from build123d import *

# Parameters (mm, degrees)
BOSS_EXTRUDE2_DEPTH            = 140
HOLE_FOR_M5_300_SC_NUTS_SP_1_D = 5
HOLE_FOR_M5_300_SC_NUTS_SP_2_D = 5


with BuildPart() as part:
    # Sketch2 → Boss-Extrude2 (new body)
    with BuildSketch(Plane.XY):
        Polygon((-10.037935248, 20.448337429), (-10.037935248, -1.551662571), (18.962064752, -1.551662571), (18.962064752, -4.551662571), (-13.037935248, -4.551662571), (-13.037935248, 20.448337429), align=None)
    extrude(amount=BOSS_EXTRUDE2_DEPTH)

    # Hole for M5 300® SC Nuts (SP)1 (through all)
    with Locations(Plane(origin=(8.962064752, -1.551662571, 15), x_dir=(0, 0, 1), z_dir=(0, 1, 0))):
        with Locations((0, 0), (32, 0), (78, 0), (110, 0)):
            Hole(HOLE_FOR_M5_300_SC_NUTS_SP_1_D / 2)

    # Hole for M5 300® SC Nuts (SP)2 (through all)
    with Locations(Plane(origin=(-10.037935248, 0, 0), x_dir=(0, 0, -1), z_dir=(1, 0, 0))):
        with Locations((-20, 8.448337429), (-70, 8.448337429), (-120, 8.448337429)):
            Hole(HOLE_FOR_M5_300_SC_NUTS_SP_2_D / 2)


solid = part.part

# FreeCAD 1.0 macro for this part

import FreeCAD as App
import Part
import Sketcher
from FreeCAD import Vector

doc = App.newDocument("Part")
body = doc.addObject("PartDesign::Body", "Body")

# Sketch on XY plane
sketch1 = doc.addObject("Sketcher::SketchObject", "Sketch")
body.addObject(sketch1)
sketch1.AttachmentSupport = (doc.XY_Plane, [""])
sketch1.MapMode = "FlatFace"
sketch1.addGeometry([
    Part.LineSegment(Vector(-10, -1.6, 0), Vector(-10, 20.4, 0)),  # 0
    Part.LineSegment(Vector(-10, 20.4, 0), Vector(-13, 20.4, 0)),  # 1
    Part.LineSegment(Vector(-13, 20.4, 0), Vector(-13, -4.6, 0)),  # 2
    Part.LineSegment(Vector(-13, -4.6, 0), Vector(19, -4.6, 0)),  # 3
    Part.LineSegment(Vector(19, -4.6, 0), Vector(19, -1.6, 0)),  # 4
    Part.LineSegment(Vector(19, -1.6, 0), Vector(-10, -1.6, 0)),  # 5
], False)
sketch1.addConstraint([
    Sketcher.Constraint("Coincident", 0, 2, 1, 1),
    Sketcher.Constraint("Coincident", 1, 2, 2, 1),
    Sketcher.Constraint("Coincident", 2, 2, 3, 1),
    Sketcher.Constraint("Coincident", 3, 2, 4, 1),
    Sketcher.Constraint("Coincident", 4, 2, 5, 1),
    Sketcher.Constraint("Coincident", 5, 2, 0, 1),
    Sketcher.Constraint("Vertical", 0),
    Sketcher.Constraint("Horizontal", 1),
    Sketcher.Constraint("Vertical", 2),
    Sketcher.Constraint("Horizontal", 3),
    Sketcher.Constraint("Vertical", 4),
    Sketcher.Constraint("Horizontal", 5),
    Sketcher.Constraint("Equal", 1, 4),
    Sketcher.Constraint("DistanceX", 1, 2, 1, 1, 3.0),
    Sketcher.Constraint("DistanceX", 3, 1, 3, 2, 32.0),
    Sketcher.Constraint("DistanceY", 0, 1, 0, 2, 22.0),
    Sketcher.Constraint("DistanceX", 0, 2, -1, 1, 10.037935),
    Sketcher.Constraint("DistanceY", -1, 1, 0, 2, 20.448337),
])
pad1 = doc.addObject("PartDesign::Pad", "Pad")
body.addObject(pad1)
pad1.Profile = sketch1
pad1.Length = 140

# Sketch on XZ plane
sketch2 = doc.addObject("Sketcher::SketchObject", "Sketch001")
body.addObject(sketch2)
sketch2.AttachmentSupport = (doc.XZ_Plane, [""])
sketch2.MapMode = "FlatFace"
sketch2.AttachmentOffset = App.Placement(Vector(0, 0, 1.551663), App.Rotation())
sketch2.addGeometry([
    Part.Circle(Vector(9, 15, 0), Vector(0, 0, 1), 2.5),
    Part.Circle(Vector(9, 47, 0), Vector(0, 0, 1), 2.5),
    Part.Circle(Vector(9, 93, 0), Vector(0, 0, 1), 2.5),
    Part.Circle(Vector(9, 125, 0), Vector(0, 0, 1), 2.5),
], False)
sketch2.addConstraint([
    Sketcher.Constraint("Equal", 0, 1),
    Sketcher.Constraint("Equal", 1, 2),
    Sketcher.Constraint("Equal", 2, 3),
    Sketcher.Constraint("Vertical", 0, 3, 1, 3),
    Sketcher.Constraint("Vertical", 1, 3, 2, 3),
    Sketcher.Constraint("Vertical", 2, 3, 3, 3),
    Sketcher.Constraint("Diameter", 0, 5.0),
    Sketcher.Constraint("DistanceY", -1, 1, 0, 3, 15.0),
    Sketcher.Constraint("DistanceY", -1, 1, 1, 3, 47.0),
    Sketcher.Constraint("DistanceY", -1, 1, 2, 3, 93.0),
    Sketcher.Constraint("DistanceY", -1, 1, 3, 3, 125.0),
    Sketcher.Constraint("DistanceX", -1, 1, 0, 3, 8.962065),
])
doc.recompute()
hole = doc.addObject("PartDesign::Hole", "Hole")
body.addObject(hole)
hole.Profile = sketch2
hole.ThreadType = "None"
hole.Diameter = 5
hole.DepthType = "ThroughAll"
hole.Reversed = True

# Sketch on YZ plane
sketch3 = doc.addObject("Sketcher::SketchObject", "Sketch002")
body.addObject(sketch3)
sketch3.AttachmentSupport = (doc.YZ_Plane, [""])
sketch3.MapMode = "FlatFace"
sketch3.AttachmentOffset = App.Placement(Vector(0, 0, -10.037935), App.Rotation())
sketch3.addGeometry([
    Part.Circle(Vector(8.4, 20, 0), Vector(0, 0, 1), 2.5),
    Part.Circle(Vector(8.4, 70, 0), Vector(0, 0, 1), 2.5),
    Part.Circle(Vector(8.4, 120, 0), Vector(0, 0, 1), 2.5),
], False)
sketch3.addConstraint([
    Sketcher.Constraint("Equal", 0, 1),
    Sketcher.Constraint("Equal", 1, 2),
    Sketcher.Constraint("Vertical", 0, 3, 1, 3),
    Sketcher.Constraint("Vertical", 1, 3, 2, 3),
    Sketcher.Constraint("Diameter", 0, 5.0),
    Sketcher.Constraint("DistanceY", -1, 1, 0, 3, 20.0),
    Sketcher.Constraint("DistanceY", -1, 1, 1, 3, 70.0),
    Sketcher.Constraint("DistanceY", -1, 1, 2, 3, 120.0),
    Sketcher.Constraint("DistanceX", -1, 1, 0, 3, 8.448337),
])
doc.recompute()
hole2 = doc.addObject("PartDesign::Hole", "Hole001")
body.addObject(hole2)
hole2.Profile = sketch3
hole2.ThreadType = "None"
hole2.Diameter = 5
hole2.DepthType = "ThroughAll"

doc.recompute()
